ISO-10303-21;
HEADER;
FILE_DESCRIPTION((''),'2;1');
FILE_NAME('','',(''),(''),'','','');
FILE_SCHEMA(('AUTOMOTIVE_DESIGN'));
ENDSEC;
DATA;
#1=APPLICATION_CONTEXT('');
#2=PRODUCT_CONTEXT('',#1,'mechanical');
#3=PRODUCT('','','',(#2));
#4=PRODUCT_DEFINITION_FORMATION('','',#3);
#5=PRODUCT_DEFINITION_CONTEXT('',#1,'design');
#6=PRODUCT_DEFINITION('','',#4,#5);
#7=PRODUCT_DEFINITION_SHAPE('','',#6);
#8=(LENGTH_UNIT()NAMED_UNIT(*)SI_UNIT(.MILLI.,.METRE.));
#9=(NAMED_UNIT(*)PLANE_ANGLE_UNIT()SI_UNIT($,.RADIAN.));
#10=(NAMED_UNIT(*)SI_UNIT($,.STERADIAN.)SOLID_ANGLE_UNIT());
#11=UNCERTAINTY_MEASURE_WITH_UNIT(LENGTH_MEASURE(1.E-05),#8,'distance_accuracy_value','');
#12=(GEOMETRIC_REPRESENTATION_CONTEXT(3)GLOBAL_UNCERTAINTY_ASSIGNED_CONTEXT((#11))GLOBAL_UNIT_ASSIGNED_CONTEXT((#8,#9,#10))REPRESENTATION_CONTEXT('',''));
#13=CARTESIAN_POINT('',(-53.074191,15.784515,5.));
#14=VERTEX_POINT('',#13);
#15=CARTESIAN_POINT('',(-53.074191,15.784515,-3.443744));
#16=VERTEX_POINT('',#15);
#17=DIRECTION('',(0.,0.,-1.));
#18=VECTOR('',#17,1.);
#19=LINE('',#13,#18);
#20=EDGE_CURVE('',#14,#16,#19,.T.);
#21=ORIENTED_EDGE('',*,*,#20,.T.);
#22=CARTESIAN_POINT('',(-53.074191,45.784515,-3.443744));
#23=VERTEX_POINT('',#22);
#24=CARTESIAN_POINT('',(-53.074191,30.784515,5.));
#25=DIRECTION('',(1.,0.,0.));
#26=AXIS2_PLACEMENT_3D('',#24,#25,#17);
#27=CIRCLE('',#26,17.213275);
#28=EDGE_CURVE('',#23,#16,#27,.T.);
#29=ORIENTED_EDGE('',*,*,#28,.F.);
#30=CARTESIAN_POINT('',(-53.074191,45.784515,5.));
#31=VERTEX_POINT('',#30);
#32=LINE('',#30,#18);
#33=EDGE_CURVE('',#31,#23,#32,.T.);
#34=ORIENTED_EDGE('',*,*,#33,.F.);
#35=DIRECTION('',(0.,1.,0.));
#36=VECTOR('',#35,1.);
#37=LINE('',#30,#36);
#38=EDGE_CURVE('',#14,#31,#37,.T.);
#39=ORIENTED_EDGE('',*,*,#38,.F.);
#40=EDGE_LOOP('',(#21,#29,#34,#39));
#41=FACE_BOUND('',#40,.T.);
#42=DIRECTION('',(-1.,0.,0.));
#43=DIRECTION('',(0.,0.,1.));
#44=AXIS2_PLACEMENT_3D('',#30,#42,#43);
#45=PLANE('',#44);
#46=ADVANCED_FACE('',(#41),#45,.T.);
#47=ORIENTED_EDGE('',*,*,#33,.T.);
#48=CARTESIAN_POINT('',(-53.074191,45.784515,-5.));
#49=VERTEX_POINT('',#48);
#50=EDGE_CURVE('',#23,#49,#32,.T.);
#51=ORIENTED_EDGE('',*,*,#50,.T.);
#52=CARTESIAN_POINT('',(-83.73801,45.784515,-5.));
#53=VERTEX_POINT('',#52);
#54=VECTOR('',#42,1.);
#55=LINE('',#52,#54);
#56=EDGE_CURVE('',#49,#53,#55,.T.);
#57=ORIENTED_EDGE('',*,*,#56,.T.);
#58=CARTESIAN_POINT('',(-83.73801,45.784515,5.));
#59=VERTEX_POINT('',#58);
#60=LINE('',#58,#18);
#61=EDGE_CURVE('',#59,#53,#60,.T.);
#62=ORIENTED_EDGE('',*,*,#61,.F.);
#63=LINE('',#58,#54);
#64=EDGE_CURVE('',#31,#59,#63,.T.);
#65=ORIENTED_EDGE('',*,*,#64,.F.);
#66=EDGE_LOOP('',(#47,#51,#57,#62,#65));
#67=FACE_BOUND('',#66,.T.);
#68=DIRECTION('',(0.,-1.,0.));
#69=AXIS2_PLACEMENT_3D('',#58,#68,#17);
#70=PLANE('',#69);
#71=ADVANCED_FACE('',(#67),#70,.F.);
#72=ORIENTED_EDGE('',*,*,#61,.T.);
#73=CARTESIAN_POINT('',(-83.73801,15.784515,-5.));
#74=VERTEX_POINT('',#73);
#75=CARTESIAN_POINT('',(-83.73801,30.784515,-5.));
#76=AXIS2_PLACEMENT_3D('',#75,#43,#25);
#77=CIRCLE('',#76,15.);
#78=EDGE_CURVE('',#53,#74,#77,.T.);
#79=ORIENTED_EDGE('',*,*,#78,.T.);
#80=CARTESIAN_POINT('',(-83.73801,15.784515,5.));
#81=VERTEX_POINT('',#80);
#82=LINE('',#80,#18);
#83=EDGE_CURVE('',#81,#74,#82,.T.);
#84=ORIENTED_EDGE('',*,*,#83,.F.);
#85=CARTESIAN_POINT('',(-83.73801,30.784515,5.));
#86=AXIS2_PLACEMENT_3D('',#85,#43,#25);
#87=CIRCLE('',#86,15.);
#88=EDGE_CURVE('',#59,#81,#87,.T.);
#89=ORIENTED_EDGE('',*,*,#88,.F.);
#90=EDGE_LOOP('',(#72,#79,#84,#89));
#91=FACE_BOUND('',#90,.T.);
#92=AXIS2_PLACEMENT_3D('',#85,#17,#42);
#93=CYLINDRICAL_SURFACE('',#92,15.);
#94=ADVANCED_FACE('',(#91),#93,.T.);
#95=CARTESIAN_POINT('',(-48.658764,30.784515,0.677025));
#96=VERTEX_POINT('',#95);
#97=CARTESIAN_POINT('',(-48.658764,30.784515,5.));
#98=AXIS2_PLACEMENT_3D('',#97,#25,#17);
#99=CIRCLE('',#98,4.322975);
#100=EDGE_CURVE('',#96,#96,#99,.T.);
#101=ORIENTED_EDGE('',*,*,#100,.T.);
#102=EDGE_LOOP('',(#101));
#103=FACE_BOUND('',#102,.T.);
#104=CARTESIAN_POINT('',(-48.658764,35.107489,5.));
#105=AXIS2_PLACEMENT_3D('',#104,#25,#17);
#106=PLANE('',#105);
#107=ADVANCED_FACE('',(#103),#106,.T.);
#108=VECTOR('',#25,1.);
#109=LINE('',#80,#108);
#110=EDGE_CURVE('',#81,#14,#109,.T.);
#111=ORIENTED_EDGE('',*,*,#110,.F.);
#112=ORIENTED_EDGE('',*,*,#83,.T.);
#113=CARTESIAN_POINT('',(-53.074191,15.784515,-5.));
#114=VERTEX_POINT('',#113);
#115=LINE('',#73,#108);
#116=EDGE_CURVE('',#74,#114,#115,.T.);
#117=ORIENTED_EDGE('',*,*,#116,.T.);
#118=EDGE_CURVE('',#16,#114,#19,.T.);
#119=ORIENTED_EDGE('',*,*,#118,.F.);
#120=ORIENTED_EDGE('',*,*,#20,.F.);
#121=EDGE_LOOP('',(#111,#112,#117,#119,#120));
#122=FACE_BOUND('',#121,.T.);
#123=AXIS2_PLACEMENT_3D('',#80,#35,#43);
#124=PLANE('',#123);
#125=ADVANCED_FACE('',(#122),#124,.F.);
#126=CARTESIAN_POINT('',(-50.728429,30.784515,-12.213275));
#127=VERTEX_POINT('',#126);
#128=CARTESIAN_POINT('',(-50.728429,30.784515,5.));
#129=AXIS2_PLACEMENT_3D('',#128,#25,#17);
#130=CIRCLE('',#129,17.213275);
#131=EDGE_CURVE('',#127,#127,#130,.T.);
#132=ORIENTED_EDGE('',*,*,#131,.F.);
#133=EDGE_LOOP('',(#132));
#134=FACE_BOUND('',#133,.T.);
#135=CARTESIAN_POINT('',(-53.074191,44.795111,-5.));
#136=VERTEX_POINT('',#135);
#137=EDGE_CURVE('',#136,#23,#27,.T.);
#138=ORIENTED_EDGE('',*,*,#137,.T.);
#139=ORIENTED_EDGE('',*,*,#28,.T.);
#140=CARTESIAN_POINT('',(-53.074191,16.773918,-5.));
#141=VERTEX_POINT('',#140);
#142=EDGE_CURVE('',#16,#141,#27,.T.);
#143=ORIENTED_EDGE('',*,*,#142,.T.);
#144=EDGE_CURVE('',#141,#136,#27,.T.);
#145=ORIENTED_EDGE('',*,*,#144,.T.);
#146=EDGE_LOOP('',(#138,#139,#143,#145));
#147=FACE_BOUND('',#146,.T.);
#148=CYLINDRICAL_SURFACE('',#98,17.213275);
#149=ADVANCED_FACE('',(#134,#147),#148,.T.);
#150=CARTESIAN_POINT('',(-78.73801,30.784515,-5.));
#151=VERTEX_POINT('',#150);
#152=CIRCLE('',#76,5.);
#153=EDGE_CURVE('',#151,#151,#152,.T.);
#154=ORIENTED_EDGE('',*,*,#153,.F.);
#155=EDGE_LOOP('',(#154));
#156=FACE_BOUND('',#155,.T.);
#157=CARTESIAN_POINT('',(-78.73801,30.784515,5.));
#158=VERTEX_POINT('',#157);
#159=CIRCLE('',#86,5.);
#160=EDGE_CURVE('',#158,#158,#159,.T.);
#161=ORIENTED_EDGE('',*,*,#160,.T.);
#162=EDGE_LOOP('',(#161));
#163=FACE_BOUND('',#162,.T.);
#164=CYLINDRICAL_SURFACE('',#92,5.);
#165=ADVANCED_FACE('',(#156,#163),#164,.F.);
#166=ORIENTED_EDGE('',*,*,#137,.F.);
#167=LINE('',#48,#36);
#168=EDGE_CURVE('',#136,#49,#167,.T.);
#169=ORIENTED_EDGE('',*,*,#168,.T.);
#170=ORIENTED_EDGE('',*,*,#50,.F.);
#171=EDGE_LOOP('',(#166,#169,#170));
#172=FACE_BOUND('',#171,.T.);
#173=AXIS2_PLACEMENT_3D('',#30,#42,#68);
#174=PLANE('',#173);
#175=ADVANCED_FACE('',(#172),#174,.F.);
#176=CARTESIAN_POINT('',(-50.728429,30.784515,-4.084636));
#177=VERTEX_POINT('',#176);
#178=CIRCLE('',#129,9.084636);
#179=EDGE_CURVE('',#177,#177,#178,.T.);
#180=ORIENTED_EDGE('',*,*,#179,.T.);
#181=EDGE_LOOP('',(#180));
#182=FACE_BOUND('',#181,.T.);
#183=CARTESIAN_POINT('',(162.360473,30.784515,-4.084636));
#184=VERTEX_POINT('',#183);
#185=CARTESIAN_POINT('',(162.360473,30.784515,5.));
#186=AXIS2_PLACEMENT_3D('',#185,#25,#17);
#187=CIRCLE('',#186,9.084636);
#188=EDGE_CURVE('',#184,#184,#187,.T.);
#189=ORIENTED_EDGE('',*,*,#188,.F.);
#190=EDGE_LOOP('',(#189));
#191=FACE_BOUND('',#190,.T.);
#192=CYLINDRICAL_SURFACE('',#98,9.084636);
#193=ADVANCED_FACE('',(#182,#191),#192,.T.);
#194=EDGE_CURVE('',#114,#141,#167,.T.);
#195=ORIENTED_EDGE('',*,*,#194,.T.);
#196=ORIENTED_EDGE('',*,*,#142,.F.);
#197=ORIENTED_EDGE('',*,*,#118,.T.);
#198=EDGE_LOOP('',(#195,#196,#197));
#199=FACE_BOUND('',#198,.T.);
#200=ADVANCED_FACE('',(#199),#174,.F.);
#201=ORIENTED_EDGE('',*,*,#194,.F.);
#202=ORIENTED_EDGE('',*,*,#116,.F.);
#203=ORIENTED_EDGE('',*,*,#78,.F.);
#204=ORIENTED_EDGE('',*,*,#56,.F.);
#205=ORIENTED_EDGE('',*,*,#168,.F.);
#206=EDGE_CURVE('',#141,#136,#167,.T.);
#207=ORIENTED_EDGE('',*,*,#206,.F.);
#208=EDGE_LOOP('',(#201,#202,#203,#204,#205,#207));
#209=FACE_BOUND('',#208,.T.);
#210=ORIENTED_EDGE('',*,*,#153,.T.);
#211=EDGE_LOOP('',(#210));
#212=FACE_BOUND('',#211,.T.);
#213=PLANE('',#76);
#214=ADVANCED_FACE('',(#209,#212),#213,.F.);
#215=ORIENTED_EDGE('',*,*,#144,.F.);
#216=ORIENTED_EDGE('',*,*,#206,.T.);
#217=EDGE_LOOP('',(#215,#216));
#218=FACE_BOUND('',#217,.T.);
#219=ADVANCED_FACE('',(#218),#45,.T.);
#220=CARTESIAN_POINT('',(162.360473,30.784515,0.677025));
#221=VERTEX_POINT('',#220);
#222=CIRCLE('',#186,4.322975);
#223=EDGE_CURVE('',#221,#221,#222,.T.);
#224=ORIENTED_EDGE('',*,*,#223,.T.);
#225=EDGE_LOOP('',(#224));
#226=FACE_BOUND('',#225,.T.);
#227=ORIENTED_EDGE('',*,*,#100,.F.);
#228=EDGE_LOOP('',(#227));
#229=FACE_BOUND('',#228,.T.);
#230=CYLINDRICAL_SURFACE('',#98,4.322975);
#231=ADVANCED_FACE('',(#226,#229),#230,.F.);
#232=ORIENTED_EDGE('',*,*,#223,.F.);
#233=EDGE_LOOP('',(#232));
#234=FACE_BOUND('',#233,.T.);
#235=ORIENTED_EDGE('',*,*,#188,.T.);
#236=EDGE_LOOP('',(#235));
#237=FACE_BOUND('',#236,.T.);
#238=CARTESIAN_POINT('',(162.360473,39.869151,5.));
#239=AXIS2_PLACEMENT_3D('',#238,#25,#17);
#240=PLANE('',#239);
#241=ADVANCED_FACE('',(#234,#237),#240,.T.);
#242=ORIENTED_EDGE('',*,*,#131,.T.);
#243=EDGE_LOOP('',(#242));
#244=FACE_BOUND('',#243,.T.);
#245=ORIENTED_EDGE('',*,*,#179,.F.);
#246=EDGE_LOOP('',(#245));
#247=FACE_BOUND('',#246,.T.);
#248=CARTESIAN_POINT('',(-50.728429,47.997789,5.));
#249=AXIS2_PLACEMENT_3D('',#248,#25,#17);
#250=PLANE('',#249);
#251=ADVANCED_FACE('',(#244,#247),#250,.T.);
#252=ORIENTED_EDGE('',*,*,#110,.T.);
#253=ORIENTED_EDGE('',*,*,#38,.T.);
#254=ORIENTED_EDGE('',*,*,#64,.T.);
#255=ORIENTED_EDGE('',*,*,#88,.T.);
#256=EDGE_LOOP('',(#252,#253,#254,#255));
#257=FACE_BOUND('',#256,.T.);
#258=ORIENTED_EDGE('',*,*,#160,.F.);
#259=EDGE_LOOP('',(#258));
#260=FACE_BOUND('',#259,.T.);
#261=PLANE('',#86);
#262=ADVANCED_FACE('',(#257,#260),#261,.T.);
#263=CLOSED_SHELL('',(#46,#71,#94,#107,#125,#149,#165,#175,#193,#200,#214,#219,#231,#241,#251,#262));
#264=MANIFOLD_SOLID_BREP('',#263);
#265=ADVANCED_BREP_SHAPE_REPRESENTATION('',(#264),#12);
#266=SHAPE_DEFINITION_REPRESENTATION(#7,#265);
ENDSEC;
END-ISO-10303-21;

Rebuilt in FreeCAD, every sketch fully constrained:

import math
import FreeCAD as App
import Part
import Sketcher
from FreeCAD import Vector

doc = App.newDocument("Part")
params = doc.addObject("Spreadsheet::Sheet", "Params")
for row, (alias, value) in enumerate([
    ("sketch1_diameter", "10 mm"),
    ("sketch1_radius", "15 mm"),
    ("pad1_length", "10 mm"),
    ("revolution_angle", "360 deg"),
], start=1):
    params.set(f"A{row}", alias)
    params.set(f"B{row}", "=" + value)
    params.setAlias(f"B{row}", alias)

body = doc.addObject("PartDesign::Body", "Body")

# Sketch on XY plane
sketch1 = doc.addObject("Sketcher::SketchObject", "Sketch")
body.addObject(sketch1)
sketch1.AttachmentSupport = (doc.XY_Plane, [""])
sketch1.MapMode = "FlatFace"
sketch1.addGeometry([
    Part.LineSegment(Vector(-53, 46, 0), Vector(-84, 46, 0)),  # 0
    Part.ArcOfCircle(Part.Circle(Vector(-84, 31, 0), Vector(0, 0, 1), 15), math.radians(90), math.radians(270)),  # 1
    Part.LineSegment(Vector(-84, 16, 0), Vector(-53, 16, 0)),  # 2
    Part.LineSegment(Vector(-53, 16, 0), Vector(-53, 46, 0)),  # 3
    Part.Circle(Vector(-84, 31, 0), Vector(0, 0, 1), 5),  # 4
], False)
sketch1.addConstraint([
    Sketcher.Constraint("Tangent", 0, 2, 1, 1),
    Sketcher.Constraint("Tangent", 1, 2, 2, 1),
    Sketcher.Constraint("Coincident", 2, 2, 3, 1),
    Sketcher.Constraint("Coincident", 3, 2, 0, 1),
    Sketcher.Constraint("Horizontal", 0),
    Sketcher.Constraint("Horizontal", 2),
    Sketcher.Constraint("Vertical", 3),
    Sketcher.Constraint("Coincident", 4, 3, 1, 3),
    Sketcher.Constraint("Diameter", 4, 10.0),
    Sketcher.Constraint("Radius", 1, 15.0),
    Sketcher.Constraint("DistanceX", 0, 2, 0, 1, 30.66382),
    Sketcher.Constraint("DistanceX", 1, 3, -1, 1, 83.73801),
    Sketcher.Constraint("DistanceY", -1, 1, 1, 3, 30.784515),
])
sketch1.setExpression("Constraints[8]", "Params.sketch1_diameter")
sketch1.setExpression("Constraints[9]", "Params.sketch1_radius")
pad1 = doc.addObject("PartDesign::Pad", "Pad")
body.addObject(pad1)
pad1.Profile = sketch1
pad1.setExpression("Length", "Params.pad1_length")
pad1.Midplane = True

# Sketch on XY plane
sketch2 = doc.addObject("Sketcher::SketchObject", "Sketch001")
body.addObject(sketch2)
sketch2.AttachmentSupport = (doc.XY_Plane, [""])
sketch2.MapMode = "FlatFace"
sketch2.AttachmentOffset = App.Placement(Vector(0, 0, 5), App.Rotation())
sketch2.addGeometry([
    Part.LineSegment(Vector(-53.1, 48, 0), Vector(-53.1, 30.8, 0)),  # 0
    Part.LineSegment(Vector(-53.1, 30.8, 0), Vector(-48.7, 30.8, 0)),  # 1
    Part.LineSegment(Vector(-48.7, 30.8, 0), Vector(-48.7, 35.1, 0)),  # 2
    Part.LineSegment(Vector(-48.7, 35.1, 0), Vector(162.4, 35.1, 0)),  # 3
    Part.LineSegment(Vector(162.4, 35.1, 0), Vector(162.4, 39.9, 0)),  # 4
    Part.LineSegment(Vector(162.4, 39.9, 0), Vector(-50.7, 39.9, 0)),  # 5
    Part.LineSegment(Vector(-50.7, 39.9, 0), Vector(-50.7, 48, 0)),  # 6
    Part.LineSegment(Vector(-50.7, 48, 0), Vector(-53.1, 48, 0)),  # 7
], False)
sketch2.addGeometry(Part.LineSegment(Vector(162.4, 30.8, 0), Vector(-53.1, 30.8, 0)), True)  # axis
sketch2.addConstraint([
    Sketcher.Constraint("Coincident", 0, 2, 1, 1),
    Sketcher.Constraint("Coincident", 1, 2, 2, 1),
    Sketcher.Constraint("Coincident", 2, 2, 3, 1),
    Sketcher.Constraint("Coincident", 3, 2, 4, 1),
    Sketcher.Constraint("Coincident", 4, 2, 5, 1),
    Sketcher.Constraint("Coincident", 5, 2, 6, 1),
    Sketcher.Constraint("Coincident", 6, 2, 7, 1),
    Sketcher.Constraint("Coincident", 7, 2, 0, 1),
    Sketcher.Constraint("Vertical", 0),
    Sketcher.Constraint("Horizontal", 1),
    Sketcher.Constraint("Vertical", 2),
    Sketcher.Constraint("Horizontal", 3),
    Sketcher.Constraint("Vertical", 4),
    Sketcher.Constraint("Horizontal", 5),
    Sketcher.Constraint("Vertical", 6),
    Sketcher.Constraint("Horizontal", 7),
    Sketcher.Constraint("Horizontal", 8),
    Sketcher.Constraint("Coincident", 8, 2, 0, 2),
    Sketcher.Constraint("Vertical", 4, 2, 8, 1),
    Sketcher.Constraint("DistanceX", 7, 2, 7, 1, 2.345761),
    Sketcher.Constraint("DistanceY", 4, 1, 4, 2, 4.761662),
    Sketcher.Constraint("DistanceY", 6, 1, 6, 2, 8.128638),
    Sketcher.Constraint("DistanceX", 1, 1, 1, 2, 4.415427),
    Sketcher.Constraint("DistanceX", 3, 1, 3, 2, 211.019237),
    Sketcher.Constraint("DistanceY", 0, 2, 0, 1, 17.213275),
    Sketcher.Constraint("DistanceX", 0, 2, -1, 1, 53.074191),
    Sketcher.Constraint("DistanceY", -1, 1, 2, 2, 35.107489),
])
revolution = doc.addObject("PartDesign::Revolution", "Revolution")
body.addObject(revolution)
revolution.Profile = sketch2
revolution.ReferenceAxis = (sketch2, ["Axis0"])
revolution.setExpression("Angle", "Params.revolution_angle")

doc.recompute()
